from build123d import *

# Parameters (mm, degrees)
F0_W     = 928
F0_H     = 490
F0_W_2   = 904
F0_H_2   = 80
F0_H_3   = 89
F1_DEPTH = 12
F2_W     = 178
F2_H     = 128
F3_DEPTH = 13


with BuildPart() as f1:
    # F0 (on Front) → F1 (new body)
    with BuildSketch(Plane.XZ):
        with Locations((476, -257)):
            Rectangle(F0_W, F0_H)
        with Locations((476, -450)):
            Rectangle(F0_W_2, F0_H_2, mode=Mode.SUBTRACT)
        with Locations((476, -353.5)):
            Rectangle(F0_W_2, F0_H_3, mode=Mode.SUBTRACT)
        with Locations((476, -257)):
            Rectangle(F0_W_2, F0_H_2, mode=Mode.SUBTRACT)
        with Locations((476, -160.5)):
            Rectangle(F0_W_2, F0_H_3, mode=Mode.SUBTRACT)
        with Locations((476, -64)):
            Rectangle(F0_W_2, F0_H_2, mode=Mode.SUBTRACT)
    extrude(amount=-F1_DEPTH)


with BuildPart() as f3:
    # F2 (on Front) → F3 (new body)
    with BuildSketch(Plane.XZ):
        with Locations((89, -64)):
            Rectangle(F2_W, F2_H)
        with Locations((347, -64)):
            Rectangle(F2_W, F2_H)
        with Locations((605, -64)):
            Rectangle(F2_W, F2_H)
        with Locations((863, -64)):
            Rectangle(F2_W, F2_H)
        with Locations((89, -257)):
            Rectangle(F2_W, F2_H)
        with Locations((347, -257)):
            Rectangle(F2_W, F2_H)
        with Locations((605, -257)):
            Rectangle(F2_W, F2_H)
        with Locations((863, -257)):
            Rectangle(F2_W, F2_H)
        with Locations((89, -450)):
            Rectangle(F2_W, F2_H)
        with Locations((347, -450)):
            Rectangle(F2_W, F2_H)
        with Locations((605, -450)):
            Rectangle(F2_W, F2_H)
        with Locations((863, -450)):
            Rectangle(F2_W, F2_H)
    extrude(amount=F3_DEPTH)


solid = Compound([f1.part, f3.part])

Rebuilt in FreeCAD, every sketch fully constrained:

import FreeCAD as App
import Part
import Sketcher
from FreeCAD import Vector
Q = App.Units.Quantity


def add_polygon(sketch, points):
    """Adds a closed chain of lines whose ends are joined by coincident constraints."""
    first, n = sketch.GeometryCount, len(points)
    for a, b in zip(points, points[1:] + points[:1]):
        sketch.addGeometry(Part.LineSegment(App.Vector(*a, 0), App.Vector(*b, 0)), False)
    for i in range(n):
        sketch.addConstraint(Sketcher.Constraint("Coincident", first + i, 2, first + (i + 1) % n, 1))

doc = App.newDocument("Part")
body = doc.addObject("PartDesign::Body", "Body")

# Sketch on XZ plane
sketch1 = body.newObject("Sketcher::SketchObject", "Sketch")
sketch1.AttachmentSupport = (doc.getObject("XZ_Plane"), [""])
sketch1.MapMode = "FlatFace"
add_polygon(sketch1, [(12, -12), (12, -502), (940, -502), (940, -12)])  # lines 0-3
add_polygon(sketch1, [(928, -490), (24, -490), (24, -410), (928, -410)])  # lines 4-7
add_polygon(sketch1, [(928, -398), (24, -398), (24, -309), (928, -309)])  # lines 8-11
add_polygon(sketch1, [(928, -297), (24, -297), (24, -217), (928, -217)])  # lines 12-15
add_polygon(sketch1, [(928, -205), (24, -205), (24, -116), (928, -116)])  # lines 16-19
add_polygon(sketch1, [(928, -104), (24, -104), (24, -24), (928, -24)])  # lines 20-23
sketch1.addConstraint(Sketcher.Constraint("Vertical", 0))
sketch1.addConstraint(Sketcher.Constraint("Horizontal", 1))
sketch1.addConstraint(Sketcher.Constraint("Vertical", 2))
sketch1.addConstraint(Sketcher.Constraint("Horizontal", 3))
sketch1.addConstraint(Sketcher.Constraint("Horizontal", 4))
sketch1.addConstraint(Sketcher.Constraint("Vertical", 5))
sketch1.addConstraint(Sketcher.Constraint("Horizontal", 6))
sketch1.addConstraint(Sketcher.Constraint("Vertical", 7))
sketch1.addConstraint(Sketcher.Constraint("Horizontal", 8))
sketch1.addConstraint(Sketcher.Constraint("Vertical", 9))
sketch1.addConstraint(Sketcher.Constraint("Horizontal", 10))
sketch1.addConstraint(Sketcher.Constraint("Vertical", 11))
sketch1.addConstraint(Sketcher.Constraint("Horizontal", 12))
sketch1.addConstraint(Sketcher.Constraint("Vertical", 13))
sketch1.addConstraint(Sketcher.Constraint("Horizontal", 14))
sketch1.addConstraint(Sketcher.Constraint("Vertical", 15))
sketch1.addConstraint(Sketcher.Constraint("Horizontal", 16))
sketch1.addConstraint(Sketcher.Constraint("Vertical", 17))
sketch1.addConstraint(Sketcher.Constraint("Horizontal", 18))
sketch1.addConstraint(Sketcher.Constraint("Vertical", 19))
sketch1.addConstraint(Sketcher.Constraint("Horizontal", 20))
sketch1.addConstraint(Sketcher.Constraint("Vertical", 21))
sketch1.addConstraint(Sketcher.Constraint("Horizontal", 22))
sketch1.addConstraint(Sketcher.Constraint("Vertical", 23))
sketch1.addConstraint(Sketcher.Constraint("Vertical", 5, 2, 8, 2))
sketch1.addConstraint(Sketcher.Constraint("Vertical", 7, 2, 10, 2))
sketch1.addConstraint(Sketcher.Constraint("Vertical", 9, 2, 12, 2))
sketch1.addConstraint(Sketcher.Constraint("Vertical", 11, 2, 14, 2))
sketch1.addConstraint(Sketcher.Constraint("Vertical", 13, 2, 16, 2))
sketch1.addConstraint(Sketcher.Constraint("Vertical", 15, 2, 18, 2))
sketch1.addConstraint(Sketcher.Constraint("Vertical", 17, 2, 20, 2))
sketch1.addConstraint(Sketcher.Constraint("Vertical", 19, 2, 22, 2))
sketch1.addConstraint(Sketcher.Constraint("Equal", 7, 13))
sketch1.addConstraint(Sketcher.Constraint("Equal", 11, 17))
sketch1.addConstraint(Sketcher.Constraint("Equal", 15, 21))
sketch1.addConstraint(Sketcher.Constraint("DistanceX", 1, 1, 1, 2, Q("928 mm")))
sketch1.addConstraint(Sketcher.Constraint("DistanceX", 4, 2, 4, 1, Q("904 mm")))
sketch1.addConstraint(Sketcher.Constraint("DistanceY", 0, 2, 0, 1, Q("490 mm")))
sketch1.addConstraint(Sketcher.Constraint("DistanceY", 5, 1, 5, 2, Q("80 mm")))
sketch1.addConstraint(Sketcher.Constraint("DistanceY", 9, 1, 9, 2, Q("89 mm")))
sketch1.addConstraint(Sketcher.Constraint("DistanceX", -1, 1, 0, 2, Q("12 mm")))
sketch1.addConstraint(Sketcher.Constraint("DistanceY", 0, 2, -1, 1, Q("502 mm")))
sketch1.addConstraint(Sketcher.Constraint("DistanceX", -1, 1, 4, 2, Q("24 mm")))
sketch1.addConstraint(Sketcher.Constraint("DistanceY", 4, 2, -1, 1, Q("490 mm")))
sketch1.addConstraint(Sketcher.Constraint("DistanceY", 8, 2, -1, 1, Q("398 mm")))
sketch1.addConstraint(Sketcher.Constraint("DistanceY", 12, 2, -1, 1, Q("297 mm")))
sketch1.addConstraint(Sketcher.Constraint("DistanceY", 16, 2, -1, 1, Q("205 mm")))
sketch1.addConstraint(Sketcher.Constraint("DistanceY", 20, 2, -1, 1, Q("104 mm")))
pad1 = body.newObject("PartDesign::Pad", "Pad")
pad1.Profile = sketch1
pad1.Length = 12
pad1.Reversed = True
body2 = doc.addObject("PartDesign::Body", "Body001")
body2.AllowCompound = True

# Sketch on XZ plane
sketch2 = body2.newObject("Sketcher::SketchObject", "Sketch001")
sketch2.AttachmentSupport = (doc.getObject("XZ_Plane001"), [""])
sketch2.MapMode = "FlatFace"
add_polygon(sketch2, [(0, 0), (0, -128), (178, -128), (178, 0)])  # lines 0-3
add_polygon(sketch2, [(258, 0), (258, -128), (436, -128), (436, 0)])  # lines 4-7
add_polygon(sketch2, [(516, 0), (516, -128), (694, -128), (694, 0)])  # lines 8-11
add_polygon(sketch2, [(774, 0), (774, -128), (952, -128), (952, 0)])  # lines 12-15
add_polygon(sketch2, [(0, -193), (0, -321), (178, -321), (178, -193)])  # lines 16-19
add_polygon(sketch2, [(258, -193), (258, -321), (436, -321), (436, -193)])  # lines 20-23
add_polygon(sketch2, [(516, -193), (516, -321), (694, -321), (694, -193)])  # lines 24-27
add_polygon(sketch2, [(774, -193), (774, -321), (952, -321), (952, -193)])  # lines 28-31
add_polygon(sketch2, [(0, -386), (0, -514), (178, -514), (178, -386)])  # lines 32-35
add_polygon(sketch2, [(258, -386), (258, -514), (436, -514), (436, -386)])  # lines 36-39
add_polygon(sketch2, [(516, -386), (516, -514), (694, -514), (694, -386)])  # lines 40-43
add_polygon(sketch2, [(774, -386), (774, -514), (952, -514), (952, -386)])  # lines 44-47
sketch2.addConstraint(Sketcher.Constraint("Vertical", 0))
sketch2.addConstraint(Sketcher.Constraint("Horizontal", 1))
sketch2.addConstraint(Sketcher.Constraint("Vertical", 2))
sketch2.addConstraint(Sketcher.Constraint("Horizontal", 3))
sketch2.addConstraint(Sketcher.Constraint("Vertical", 4))
sketch2.addConstraint(Sketcher.Constraint("Horizontal", 5))
sketch2.addConstraint(Sketcher.Constraint("Vertical", 6))
sketch2.addConstraint(Sketcher.Constraint("Horizontal", 7))
sketch2.addConstraint(Sketcher.Constraint("Vertical", 8))
sketch2.addConstraint(Sketcher.Constraint("Horizontal", 9))
sketch2.addConstraint(Sketcher.Constraint("Vertical", 10))
sketch2.addConstraint(Sketcher.Constraint("Horizontal", 11))
sketch2.addConstraint(Sketcher.Constraint("Vertical", 12))
sketch2.addConstraint(Sketcher.Constraint("Horizontal", 13))
sketch2.addConstraint(Sketcher.Constraint("Vertical", 14))
sketch2.addConstraint(Sketcher.Constraint("Horizontal", 15))
sketch2.addConstraint(Sketcher.Constraint("Vertical", 16))
sketch2.addConstraint(Sketcher.Constraint("Horizontal", 17))
sketch2.addConstraint(Sketcher.Constraint("Vertical", 18))
sketch2.addConstraint(Sketcher.Constraint("Horizontal", 19))
sketch2.addConstraint(Sketcher.Constraint("Vertical", 20))
sketch2.addConstraint(Sketcher.Constraint("Horizontal", 21))
sketch2.addConstraint(Sketcher.Constraint("Vertical", 22))
sketch2.addConstraint(Sketcher.Constraint("Horizontal", 23))
sketch2.addConstraint(Sketcher.Constraint("Vertical", 24))
sketch2.addConstraint(Sketcher.Constraint("Horizontal", 25))
sketch2.addConstraint(Sketcher.Constraint("Vertical", 26))
sketch2.addConstraint(Sketcher.Constraint("Horizontal", 27))
sketch2.addConstraint(Sketcher.Constraint("Vertical", 28))
sketch2.addConstraint(Sketcher.Constraint("Horizontal", 29))
sketch2.addConstraint(Sketcher.Constraint("Vertical", 30))
sketch2.addConstraint(Sketcher.Constraint("Horizontal", 31))
sketch2.addConstraint(Sketcher.Constraint("Vertical", 32))
sketch2.addConstraint(Sketcher.Constraint("Horizontal", 33))
sketch2.addConstraint(Sketcher.Constraint("Vertical", 34))
sketch2.addConstraint(Sketcher.Constraint("Horizontal", 35))
sketch2.addConstraint(Sketcher.Constraint("Vertical", 36))
sketch2.addConstraint(Sketcher.Constraint("Horizontal", 37))
sketch2.addConstraint(Sketcher.Constraint("Vertical", 38))
sketch2.addConstraint(Sketcher.Constraint("Horizontal", 39))
sketch2.addConstraint(Sketcher.Constraint("Vertical", 40))
sketch2.addConstraint(Sketcher.Constraint("Horizontal", 41))
sketch2.addConstraint(Sketcher.Constraint("Vertical", 42))
sketch2.addConstraint(Sketcher.Constraint("Horizontal", 43))
sketch2.addConstraint(Sketcher.Constraint("Vertical", 44))
sketch2.addConstraint(Sketcher.Constraint("Horizontal", 45))
sketch2.addConstraint(Sketcher.Constraint("Vertical", 46))
sketch2.addConstraint(Sketcher.Constraint("Horizontal", 47))
sketch2.addConstraint(Sketcher.Constraint("Coincident", 3, 2, -1, 1))
sketch2.addConstraint(Sketcher.Constraint("PointOnObject", 6, 2, -1))
sketch2.addConstraint(Sketcher.Constraint("PointOnObject", 10, 2, -1))
sketch2.addConstraint(Sketcher.Constraint("PointOnObject", 14, 2, -1))
sketch2.addConstraint(Sketcher.Constraint("PointOnObject", 16, 2, -2))
sketch2.addConstraint(Sketcher.Constraint("PointOnObject", 32, 2, -2))
sketch2.addConstraint(Sketcher.Constraint("Horizontal", 1, 2, 4, 2))
sketch2.addConstraint(Sketcher.Constraint("Horizontal", 5, 2, 8, 2))
sketch2.addConstraint(Sketcher.Constraint("Horizontal", 9, 2, 12, 2))
sketch2.addConstraint(Sketcher.Constraint("Horizontal", 17, 2, 20, 2))
sketch2.addConstraint(Sketcher.Constraint("Horizontal", 19, 2, 22, 2))
sketch2.addConstraint(Sketcher.Constraint("Horizontal", 21, 2, 24, 2))
sketch2.addConstraint(Sketcher.Constraint("Horizontal", 23, 2, 26, 2))
sketch2.addConstraint(Sketcher.Constraint("Horizontal", 25, 2, 28, 2))
sketch2.addConstraint(Sketcher.Constraint("Horizontal", 27, 2, 30, 2))
sketch2.addConstraint(Sketcher.Constraint("Horizontal", 33, 2, 36, 2))
sketch2.addConstraint(Sketcher.Constraint("Horizontal", 35, 2, 38, 2))
sketch2.addConstraint(Sketcher.Constraint("Horizontal", 37, 2, 40, 2))
sketch2.addConstraint(Sketcher.Constraint("Horizontal", 39, 2, 42, 2))
sketch2.addConstraint(Sketcher.Constraint("Horizontal", 41, 2, 44, 2))
sketch2.addConstraint(Sketcher.Constraint("Horizontal", 43, 2, 46, 2))
sketch2.addConstraint(Sketcher.Constraint("Vertical", 2, 2, 17, 2))
sketch2.addConstraint(Sketcher.Constraint("Vertical", 7, 2, 20, 2))
sketch2.addConstraint(Sketcher.Constraint("Vertical", 6, 2, 21, 2))
sketch2.addConstraint(Sketcher.Constraint("Vertical", 11, 2, 24, 2))
sketch2.addConstraint(Sketcher.Constraint("Vertical", 10, 2, 25, 2))
sketch2.addConstraint(Sketcher.Constraint("Vertical", 15, 2, 28, 2))
sketch2.addConstraint(Sketcher.Constraint("Vertical", 14, 2, 29, 2))
sketch2.addConstraint(Sketcher.Constraint("Vertical", 18, 2, 33, 2))
sketch2.addConstraint(Sketcher.Constraint("Vertical", 23, 2, 36, 2))
sketch2.addConstraint(Sketcher.Constraint("Vertical", 22, 2, 37, 2))
sketch2.addConstraint(Sketcher.Constraint("Vertical", 27, 2, 40, 2))
sketch2.addConstraint(Sketcher.Constraint("Vertical", 26, 2, 41, 2))
sketch2.addConstraint(Sketcher.Constraint("Vertical", 31, 2, 44, 2))
sketch2.addConstraint(Sketcher.Constraint("Vertical", 30, 2, 45, 2))
sketch2.addConstraint(Sketcher.Constraint("Equal", 3, 5))
sketch2.addConstraint(Sketcher.Constraint("Equal", 7, 9))
sketch2.addConstraint(Sketcher.Constraint("Equal", 11, 13))
sketch2.addConstraint(Sketcher.Constraint("Equal", 14, 16))
sketch2.addConstraint(Sketcher.Constraint("Equal", 30, 32))
sketch2.addConstraint(Sketcher.Constraint("DistanceX", 1, 1, 1, 2, Q("178 mm")))
sketch2.addConstraint(Sketcher.Constraint("DistanceY", 0, 2, 0, 1, Q("128 mm")))
sketch2.addConstraint(Sketcher.Constraint("DistanceX", -1, 1, 4, 2, Q("258 mm")))
sketch2.addConstraint(Sketcher.Constraint("DistanceX", -1, 1, 8, 2, Q("516 mm")))
sketch2.addConstraint(Sketcher.Constraint("DistanceX", -1, 1, 12, 2, Q("774 mm")))
sketch2.addConstraint(Sketcher.Constraint("DistanceY", 16, 2, -1, 1, Q("321 mm")))
sketch2.addConstraint(Sketcher.Constraint("DistanceY", 32, 2, -1, 1, Q("514 mm")))
pad2 = body2.newObject("PartDesign::Pad", "Pad001")
pad2.Profile = sketch2
pad2.Length = 13

doc.recompute()
